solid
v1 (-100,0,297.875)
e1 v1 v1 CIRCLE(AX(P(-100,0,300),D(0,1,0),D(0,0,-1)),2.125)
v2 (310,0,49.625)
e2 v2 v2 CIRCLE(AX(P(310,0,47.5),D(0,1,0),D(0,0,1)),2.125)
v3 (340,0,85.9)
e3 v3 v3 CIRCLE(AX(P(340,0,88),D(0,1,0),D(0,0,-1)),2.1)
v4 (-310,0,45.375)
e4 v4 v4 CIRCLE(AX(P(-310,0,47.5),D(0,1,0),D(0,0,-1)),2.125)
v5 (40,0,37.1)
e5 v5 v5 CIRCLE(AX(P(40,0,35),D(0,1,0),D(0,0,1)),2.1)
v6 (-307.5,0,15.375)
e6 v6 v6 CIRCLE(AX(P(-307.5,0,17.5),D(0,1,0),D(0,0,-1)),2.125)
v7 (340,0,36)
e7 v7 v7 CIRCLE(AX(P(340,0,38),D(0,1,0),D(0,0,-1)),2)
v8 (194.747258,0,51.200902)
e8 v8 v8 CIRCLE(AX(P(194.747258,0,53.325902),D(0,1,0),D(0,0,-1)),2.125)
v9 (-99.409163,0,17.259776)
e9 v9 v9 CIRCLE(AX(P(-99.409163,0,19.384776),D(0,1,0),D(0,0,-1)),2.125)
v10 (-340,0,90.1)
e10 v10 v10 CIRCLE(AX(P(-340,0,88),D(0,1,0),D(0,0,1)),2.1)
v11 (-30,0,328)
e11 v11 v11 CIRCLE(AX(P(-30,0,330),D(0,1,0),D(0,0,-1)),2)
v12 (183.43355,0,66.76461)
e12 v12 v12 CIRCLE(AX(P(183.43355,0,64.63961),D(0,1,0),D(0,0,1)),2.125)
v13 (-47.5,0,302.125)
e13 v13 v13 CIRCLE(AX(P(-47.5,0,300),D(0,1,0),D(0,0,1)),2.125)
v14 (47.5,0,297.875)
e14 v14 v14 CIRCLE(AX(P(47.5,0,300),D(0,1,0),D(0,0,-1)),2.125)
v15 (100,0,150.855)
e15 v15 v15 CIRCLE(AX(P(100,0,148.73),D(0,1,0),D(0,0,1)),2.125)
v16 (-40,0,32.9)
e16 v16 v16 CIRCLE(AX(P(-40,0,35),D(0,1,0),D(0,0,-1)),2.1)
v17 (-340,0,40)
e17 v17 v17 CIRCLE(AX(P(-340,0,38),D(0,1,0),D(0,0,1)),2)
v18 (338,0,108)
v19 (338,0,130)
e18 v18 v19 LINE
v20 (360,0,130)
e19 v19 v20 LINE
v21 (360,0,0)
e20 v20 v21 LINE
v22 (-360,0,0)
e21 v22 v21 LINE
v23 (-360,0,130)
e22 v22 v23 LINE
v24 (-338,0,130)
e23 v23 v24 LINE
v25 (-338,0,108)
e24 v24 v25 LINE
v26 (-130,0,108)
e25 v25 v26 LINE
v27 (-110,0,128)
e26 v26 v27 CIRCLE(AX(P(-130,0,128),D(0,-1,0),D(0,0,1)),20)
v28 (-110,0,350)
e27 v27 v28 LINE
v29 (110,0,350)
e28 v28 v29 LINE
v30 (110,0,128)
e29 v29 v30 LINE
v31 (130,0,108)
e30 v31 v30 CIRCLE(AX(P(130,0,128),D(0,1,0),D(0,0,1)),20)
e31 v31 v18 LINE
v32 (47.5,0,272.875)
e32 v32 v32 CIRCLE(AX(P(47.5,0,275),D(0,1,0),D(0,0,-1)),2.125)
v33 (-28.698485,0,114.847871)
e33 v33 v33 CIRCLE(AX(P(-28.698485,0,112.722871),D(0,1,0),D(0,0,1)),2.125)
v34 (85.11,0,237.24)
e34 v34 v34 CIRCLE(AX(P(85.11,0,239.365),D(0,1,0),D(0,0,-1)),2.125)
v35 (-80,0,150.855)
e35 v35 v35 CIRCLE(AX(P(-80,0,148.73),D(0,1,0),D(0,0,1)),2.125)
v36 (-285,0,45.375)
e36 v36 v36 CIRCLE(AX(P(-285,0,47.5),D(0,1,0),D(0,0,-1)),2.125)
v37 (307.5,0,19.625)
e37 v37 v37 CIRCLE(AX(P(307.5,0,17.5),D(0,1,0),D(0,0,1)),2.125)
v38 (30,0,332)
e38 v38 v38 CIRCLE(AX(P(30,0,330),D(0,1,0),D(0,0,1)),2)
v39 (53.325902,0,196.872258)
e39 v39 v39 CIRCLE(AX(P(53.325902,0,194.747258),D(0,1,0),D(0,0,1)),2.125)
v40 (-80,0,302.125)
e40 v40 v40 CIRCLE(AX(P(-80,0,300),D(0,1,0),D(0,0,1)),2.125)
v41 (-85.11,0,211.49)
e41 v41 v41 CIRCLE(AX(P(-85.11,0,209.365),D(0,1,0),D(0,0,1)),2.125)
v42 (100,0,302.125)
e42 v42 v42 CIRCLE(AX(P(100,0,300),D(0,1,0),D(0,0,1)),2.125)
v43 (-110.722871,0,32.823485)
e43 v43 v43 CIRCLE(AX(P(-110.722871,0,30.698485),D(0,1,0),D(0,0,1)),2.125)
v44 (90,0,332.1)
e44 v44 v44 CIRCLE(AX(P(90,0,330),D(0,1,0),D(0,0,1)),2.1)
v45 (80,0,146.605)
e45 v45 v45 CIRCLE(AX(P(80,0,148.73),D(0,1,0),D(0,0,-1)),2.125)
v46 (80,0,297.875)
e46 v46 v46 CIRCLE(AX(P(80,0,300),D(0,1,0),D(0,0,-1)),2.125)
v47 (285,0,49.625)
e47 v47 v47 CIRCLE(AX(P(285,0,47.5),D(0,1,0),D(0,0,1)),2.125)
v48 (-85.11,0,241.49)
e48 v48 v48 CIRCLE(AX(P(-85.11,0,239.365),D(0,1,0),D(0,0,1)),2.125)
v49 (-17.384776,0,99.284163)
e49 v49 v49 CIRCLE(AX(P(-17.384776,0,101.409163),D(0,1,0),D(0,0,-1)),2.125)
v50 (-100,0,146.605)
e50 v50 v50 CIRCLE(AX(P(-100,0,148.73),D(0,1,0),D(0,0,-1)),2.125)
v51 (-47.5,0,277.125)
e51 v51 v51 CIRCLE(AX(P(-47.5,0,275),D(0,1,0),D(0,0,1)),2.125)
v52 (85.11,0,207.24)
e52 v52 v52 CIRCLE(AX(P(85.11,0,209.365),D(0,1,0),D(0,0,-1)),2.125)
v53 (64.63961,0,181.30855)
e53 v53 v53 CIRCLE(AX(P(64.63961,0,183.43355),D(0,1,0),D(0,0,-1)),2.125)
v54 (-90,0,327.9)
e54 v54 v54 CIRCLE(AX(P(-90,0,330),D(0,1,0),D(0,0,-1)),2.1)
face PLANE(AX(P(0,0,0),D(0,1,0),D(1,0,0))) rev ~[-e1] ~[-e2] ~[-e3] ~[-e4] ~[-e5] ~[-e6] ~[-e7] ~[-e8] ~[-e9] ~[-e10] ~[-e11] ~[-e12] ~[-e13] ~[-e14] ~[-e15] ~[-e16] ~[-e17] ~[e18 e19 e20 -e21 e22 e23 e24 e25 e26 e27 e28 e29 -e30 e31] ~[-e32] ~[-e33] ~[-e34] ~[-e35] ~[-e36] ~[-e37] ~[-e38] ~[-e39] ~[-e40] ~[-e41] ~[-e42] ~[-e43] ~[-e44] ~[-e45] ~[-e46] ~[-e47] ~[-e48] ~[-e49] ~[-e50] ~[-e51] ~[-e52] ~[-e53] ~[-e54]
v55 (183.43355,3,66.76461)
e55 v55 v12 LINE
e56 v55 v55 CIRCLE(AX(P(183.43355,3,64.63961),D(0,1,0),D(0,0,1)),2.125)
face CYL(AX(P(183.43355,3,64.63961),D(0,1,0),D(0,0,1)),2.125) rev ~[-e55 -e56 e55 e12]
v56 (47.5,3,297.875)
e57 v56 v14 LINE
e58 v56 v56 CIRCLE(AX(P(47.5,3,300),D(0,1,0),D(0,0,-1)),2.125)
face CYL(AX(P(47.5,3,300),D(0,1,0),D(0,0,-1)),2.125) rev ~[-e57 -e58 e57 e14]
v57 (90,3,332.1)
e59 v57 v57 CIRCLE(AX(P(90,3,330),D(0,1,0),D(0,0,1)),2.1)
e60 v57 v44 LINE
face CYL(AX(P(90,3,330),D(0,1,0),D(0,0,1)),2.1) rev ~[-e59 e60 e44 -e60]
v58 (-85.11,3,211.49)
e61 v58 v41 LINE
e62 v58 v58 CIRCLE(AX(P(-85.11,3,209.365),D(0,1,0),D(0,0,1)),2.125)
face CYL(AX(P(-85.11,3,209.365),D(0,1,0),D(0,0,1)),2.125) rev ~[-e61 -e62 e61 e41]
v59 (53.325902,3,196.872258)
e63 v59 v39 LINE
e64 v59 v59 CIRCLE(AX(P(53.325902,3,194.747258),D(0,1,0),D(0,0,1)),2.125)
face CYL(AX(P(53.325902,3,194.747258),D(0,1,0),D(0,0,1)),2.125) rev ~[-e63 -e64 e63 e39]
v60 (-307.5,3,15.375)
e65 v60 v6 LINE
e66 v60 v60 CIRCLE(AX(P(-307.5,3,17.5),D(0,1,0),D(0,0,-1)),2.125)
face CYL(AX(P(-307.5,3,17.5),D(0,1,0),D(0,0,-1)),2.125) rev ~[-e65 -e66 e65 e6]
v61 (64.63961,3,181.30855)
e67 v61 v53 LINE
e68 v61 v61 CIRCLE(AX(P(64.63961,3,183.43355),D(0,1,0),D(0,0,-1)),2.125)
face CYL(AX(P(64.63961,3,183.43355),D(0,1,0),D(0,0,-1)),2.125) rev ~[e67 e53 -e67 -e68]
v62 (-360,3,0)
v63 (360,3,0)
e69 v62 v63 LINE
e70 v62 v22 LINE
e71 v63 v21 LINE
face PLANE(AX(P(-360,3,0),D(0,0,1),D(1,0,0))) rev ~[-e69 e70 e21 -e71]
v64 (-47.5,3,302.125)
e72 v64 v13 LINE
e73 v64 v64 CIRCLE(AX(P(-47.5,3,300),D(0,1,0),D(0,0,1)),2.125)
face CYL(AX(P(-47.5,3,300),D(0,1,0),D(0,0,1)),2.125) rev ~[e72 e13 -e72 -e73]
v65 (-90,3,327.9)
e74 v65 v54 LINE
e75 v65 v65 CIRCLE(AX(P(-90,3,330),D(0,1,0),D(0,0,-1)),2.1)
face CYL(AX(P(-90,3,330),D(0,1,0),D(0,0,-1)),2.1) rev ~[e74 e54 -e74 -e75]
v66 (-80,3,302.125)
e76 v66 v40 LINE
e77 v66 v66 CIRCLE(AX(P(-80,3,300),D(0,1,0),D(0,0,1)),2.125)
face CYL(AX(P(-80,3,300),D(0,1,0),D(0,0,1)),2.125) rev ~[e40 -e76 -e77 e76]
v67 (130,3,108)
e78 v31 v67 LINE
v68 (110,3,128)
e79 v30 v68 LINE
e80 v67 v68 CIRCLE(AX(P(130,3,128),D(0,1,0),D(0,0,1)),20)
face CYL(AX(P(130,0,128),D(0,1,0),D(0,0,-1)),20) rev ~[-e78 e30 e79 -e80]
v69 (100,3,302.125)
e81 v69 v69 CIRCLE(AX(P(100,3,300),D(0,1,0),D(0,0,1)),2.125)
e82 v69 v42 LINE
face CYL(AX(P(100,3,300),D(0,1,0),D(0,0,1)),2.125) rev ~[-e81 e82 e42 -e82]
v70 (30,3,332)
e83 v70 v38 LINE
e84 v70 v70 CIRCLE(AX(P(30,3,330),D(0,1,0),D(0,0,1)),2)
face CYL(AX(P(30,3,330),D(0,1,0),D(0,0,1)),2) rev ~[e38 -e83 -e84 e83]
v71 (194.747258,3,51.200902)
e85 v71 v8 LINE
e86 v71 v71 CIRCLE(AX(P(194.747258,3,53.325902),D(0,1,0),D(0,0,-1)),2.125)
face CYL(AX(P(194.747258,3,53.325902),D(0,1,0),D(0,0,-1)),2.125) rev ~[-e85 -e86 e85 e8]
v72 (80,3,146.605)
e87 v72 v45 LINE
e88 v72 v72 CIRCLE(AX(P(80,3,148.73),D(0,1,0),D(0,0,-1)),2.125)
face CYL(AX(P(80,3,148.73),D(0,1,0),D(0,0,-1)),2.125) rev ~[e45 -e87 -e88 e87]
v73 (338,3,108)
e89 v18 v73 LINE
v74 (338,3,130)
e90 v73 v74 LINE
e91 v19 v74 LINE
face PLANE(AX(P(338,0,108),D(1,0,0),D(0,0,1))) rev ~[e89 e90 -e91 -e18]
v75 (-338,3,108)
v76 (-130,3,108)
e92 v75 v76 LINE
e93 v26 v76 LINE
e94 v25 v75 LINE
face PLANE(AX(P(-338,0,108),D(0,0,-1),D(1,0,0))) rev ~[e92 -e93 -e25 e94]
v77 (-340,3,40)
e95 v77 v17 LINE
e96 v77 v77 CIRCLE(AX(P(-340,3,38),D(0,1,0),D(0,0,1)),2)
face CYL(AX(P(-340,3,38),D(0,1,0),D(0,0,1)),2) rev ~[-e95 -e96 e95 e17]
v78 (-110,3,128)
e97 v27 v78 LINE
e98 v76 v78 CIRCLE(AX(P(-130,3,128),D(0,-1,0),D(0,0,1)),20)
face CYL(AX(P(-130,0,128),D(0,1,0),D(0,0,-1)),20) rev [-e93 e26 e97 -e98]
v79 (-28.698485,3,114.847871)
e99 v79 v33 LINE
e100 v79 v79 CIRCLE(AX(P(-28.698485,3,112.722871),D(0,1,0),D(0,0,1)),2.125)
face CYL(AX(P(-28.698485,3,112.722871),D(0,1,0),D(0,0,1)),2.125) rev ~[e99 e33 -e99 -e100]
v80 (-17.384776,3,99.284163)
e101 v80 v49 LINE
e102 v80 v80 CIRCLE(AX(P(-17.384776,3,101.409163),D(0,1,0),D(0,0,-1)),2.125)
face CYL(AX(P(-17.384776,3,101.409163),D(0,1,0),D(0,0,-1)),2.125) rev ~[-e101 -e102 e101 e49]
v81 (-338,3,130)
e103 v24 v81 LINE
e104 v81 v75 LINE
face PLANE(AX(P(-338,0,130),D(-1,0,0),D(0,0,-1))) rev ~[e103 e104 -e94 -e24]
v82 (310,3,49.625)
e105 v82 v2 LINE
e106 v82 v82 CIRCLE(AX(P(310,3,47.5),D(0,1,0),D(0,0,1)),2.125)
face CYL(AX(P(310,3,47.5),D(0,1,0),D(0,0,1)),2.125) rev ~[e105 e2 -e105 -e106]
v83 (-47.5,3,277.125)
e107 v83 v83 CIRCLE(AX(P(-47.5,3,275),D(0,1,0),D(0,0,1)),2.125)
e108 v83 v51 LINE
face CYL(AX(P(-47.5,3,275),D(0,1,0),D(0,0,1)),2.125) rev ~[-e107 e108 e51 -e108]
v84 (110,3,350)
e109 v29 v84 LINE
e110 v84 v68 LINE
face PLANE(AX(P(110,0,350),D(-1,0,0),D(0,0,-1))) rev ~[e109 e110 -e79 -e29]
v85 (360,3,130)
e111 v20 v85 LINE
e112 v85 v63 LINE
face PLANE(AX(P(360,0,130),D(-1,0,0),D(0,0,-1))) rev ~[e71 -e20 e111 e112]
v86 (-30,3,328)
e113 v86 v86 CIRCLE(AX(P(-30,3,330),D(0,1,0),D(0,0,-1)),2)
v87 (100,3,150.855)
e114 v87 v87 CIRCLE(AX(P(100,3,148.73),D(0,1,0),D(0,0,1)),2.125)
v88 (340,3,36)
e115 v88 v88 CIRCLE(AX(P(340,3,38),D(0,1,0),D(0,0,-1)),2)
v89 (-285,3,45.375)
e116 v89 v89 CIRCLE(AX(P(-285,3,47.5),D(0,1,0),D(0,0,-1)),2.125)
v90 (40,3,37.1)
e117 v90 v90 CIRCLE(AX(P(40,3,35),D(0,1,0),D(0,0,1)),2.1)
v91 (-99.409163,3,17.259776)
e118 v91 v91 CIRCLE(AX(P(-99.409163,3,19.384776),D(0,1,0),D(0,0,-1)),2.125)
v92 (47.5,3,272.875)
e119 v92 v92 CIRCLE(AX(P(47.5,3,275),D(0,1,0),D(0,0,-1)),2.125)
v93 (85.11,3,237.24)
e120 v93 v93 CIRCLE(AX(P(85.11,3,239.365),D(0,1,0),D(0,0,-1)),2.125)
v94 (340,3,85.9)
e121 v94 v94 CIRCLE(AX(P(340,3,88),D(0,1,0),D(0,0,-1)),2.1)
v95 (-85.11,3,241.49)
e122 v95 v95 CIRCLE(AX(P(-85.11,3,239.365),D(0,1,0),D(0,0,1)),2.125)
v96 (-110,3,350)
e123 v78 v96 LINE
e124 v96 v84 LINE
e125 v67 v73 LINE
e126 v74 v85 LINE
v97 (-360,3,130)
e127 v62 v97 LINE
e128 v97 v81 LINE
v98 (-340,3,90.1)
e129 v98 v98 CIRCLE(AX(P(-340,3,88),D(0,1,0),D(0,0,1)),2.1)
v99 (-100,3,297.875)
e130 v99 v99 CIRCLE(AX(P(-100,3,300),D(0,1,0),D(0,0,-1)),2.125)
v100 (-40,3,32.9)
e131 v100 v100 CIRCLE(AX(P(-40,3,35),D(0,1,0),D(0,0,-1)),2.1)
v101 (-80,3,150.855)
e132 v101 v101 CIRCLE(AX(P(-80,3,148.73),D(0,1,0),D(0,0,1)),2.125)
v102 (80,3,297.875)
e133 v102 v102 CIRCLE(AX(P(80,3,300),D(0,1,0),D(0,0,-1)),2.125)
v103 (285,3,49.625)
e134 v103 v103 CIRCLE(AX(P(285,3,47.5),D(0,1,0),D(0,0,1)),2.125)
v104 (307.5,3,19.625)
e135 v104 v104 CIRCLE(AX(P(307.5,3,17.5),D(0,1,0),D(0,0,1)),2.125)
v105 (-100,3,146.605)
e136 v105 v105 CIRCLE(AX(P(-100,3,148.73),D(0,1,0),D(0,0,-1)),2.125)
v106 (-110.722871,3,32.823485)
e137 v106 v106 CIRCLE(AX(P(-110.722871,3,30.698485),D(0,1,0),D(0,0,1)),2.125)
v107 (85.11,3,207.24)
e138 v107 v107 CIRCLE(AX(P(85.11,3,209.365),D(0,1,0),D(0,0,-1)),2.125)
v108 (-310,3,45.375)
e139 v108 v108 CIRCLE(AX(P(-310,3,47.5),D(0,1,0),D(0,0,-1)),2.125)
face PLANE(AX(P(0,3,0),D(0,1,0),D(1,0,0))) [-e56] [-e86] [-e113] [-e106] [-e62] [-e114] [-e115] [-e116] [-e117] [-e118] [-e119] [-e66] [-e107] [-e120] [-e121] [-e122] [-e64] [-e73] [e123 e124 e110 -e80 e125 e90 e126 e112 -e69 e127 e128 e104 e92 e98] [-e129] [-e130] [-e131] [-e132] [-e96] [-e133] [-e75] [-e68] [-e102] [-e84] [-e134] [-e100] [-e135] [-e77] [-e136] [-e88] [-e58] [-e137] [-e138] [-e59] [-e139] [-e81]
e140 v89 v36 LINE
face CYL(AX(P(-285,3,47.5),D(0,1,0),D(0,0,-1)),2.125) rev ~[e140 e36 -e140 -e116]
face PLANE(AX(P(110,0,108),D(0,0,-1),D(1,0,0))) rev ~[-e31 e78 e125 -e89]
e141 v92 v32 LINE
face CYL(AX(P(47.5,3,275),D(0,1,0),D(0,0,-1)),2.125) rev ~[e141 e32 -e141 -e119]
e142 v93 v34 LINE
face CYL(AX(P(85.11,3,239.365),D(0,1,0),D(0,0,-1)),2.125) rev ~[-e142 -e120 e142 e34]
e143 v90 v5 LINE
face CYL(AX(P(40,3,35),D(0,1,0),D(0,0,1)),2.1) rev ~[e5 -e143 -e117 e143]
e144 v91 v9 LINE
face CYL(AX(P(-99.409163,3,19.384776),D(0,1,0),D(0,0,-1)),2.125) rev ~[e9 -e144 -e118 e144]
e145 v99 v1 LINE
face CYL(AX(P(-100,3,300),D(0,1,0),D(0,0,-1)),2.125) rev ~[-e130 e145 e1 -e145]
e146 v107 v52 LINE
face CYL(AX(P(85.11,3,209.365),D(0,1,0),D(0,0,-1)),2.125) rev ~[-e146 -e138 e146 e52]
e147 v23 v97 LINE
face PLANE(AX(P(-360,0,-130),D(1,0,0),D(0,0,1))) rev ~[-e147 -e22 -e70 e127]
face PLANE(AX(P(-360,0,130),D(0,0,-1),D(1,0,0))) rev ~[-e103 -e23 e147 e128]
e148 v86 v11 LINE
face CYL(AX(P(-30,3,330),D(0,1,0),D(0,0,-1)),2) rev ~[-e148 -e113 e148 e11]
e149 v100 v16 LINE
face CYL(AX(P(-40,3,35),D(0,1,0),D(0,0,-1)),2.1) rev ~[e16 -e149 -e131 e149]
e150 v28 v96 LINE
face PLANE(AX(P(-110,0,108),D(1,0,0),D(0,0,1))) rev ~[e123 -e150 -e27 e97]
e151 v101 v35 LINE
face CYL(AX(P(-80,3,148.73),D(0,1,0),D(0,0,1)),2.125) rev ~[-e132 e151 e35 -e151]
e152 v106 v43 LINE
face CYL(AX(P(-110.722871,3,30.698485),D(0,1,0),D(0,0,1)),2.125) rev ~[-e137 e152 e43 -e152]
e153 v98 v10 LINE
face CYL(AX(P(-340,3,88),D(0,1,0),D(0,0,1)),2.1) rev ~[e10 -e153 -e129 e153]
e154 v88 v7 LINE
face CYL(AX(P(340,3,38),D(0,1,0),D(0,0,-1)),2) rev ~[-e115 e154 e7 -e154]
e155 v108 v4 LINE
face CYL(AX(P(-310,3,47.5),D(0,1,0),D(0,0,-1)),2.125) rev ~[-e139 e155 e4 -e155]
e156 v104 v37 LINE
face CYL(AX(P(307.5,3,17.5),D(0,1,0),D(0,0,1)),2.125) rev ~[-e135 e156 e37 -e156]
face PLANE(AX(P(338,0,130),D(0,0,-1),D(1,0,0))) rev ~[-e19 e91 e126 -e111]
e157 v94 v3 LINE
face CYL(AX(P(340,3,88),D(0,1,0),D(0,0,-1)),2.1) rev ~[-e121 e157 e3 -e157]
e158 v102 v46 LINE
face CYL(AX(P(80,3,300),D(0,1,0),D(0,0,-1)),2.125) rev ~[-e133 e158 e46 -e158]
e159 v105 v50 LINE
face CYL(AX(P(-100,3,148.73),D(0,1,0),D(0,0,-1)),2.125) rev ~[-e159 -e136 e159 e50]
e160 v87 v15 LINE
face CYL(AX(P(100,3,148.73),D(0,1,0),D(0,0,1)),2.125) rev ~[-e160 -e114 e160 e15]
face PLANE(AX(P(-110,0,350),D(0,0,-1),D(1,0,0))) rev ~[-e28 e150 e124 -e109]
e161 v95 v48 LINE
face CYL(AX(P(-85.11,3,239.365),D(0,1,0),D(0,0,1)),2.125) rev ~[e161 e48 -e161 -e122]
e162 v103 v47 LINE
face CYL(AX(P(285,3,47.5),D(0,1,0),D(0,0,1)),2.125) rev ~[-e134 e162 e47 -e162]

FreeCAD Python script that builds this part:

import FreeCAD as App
import Part
import Sketcher
from FreeCAD import Vector


def edges_at(feature, points):
    """Names of the edges that pass closest to the given points."""
    edges = feature.Shape.Edges
    near = lambda p: min(range(len(edges)), key=lambda i: edges[i].distToShape(Part.Vertex(*p))[0])
    return sorted({f"Edge{near(p) + 1}" for p in points})

doc = App.newDocument("Part")
body = doc.addObject("PartDesign::Body", "Body")

# Sketch on XZ plane
sketch1 = body.newObject("Sketcher::SketchObject", "Sketch")
sketch1.AttachmentSupport = (doc.getObject("XZ_Plane"), [""])
sketch1.MapMode = "FlatFace"
sketch1.addGeometry(Part.LineSegment(Vector(-110, -350, 0), Vector(-110, -108, 0)), False)
sketch1.addGeometry(Part.LineSegment(Vector(-110, -108, 0), Vector(-338, -108, 0)), False)
sketch1.addGeometry(Part.LineSegment(Vector(-338, -108, 0), Vector(-338, -130, 0)), False)
sketch1.addGeometry(Part.LineSegment(Vector(-338, -130, 0), Vector(-360, -130, 0)), False)
sketch1.addGeometry(Part.LineSegment(Vector(-360, -130, 0), Vector(-360, 130, 0)), False)
sketch1.addGeometry(Part.LineSegment(Vector(-360, 130, 0), Vector(-338, 130, 0)), False)
sketch1.addGeometry(Part.LineSegment(Vector(-338, 130, 0), Vector(-338, 108, 0)), False)
sketch1.addGeometry(Part.LineSegment(Vector(-338, 108, 0), Vector(-110, 108, 0)), False)
sketch1.addGeometry(Part.LineSegment(Vector(-110, 108, 0), Vector(-110, 350, 0)), False)
sketch1.addGeometry(Part.LineSegment(Vector(-110, 350, 0), Vector(110, 350, 0)), False)
sketch1.addGeometry(Part.LineSegment(Vector(110, 350, 0), Vector(110, 108, 0)), False)
sketch1.addGeometry(Part.LineSegment(Vector(110, 108, 0), Vector(338, 108, 0)), False)
sketch1.addGeometry(Part.LineSegment(Vector(338, 108, 0), Vector(338, 130, 0)), False)
sketch1.addGeometry(Part.LineSegment(Vector(338, 130, 0), Vector(360, 130, 0)), False)
sketch1.addGeometry(Part.LineSegment(Vector(360, 130, 0), Vector(360, -130, 0)), False)
sketch1.addGeometry(Part.LineSegment(Vector(360, -130, 0), Vector(338, -130, 0)), False)
sketch1.addGeometry(Part.LineSegment(Vector(338, -130, 0), Vector(338, -108, 0)), False)
sketch1.addGeometry(Part.LineSegment(Vector(338, -108, 0), Vector(110, -108, 0)), False)
sketch1.addGeometry(Part.LineSegment(Vector(110, -108, 0), Vector(110, -350, 0)), False)
sketch1.addGeometry(Part.LineSegment(Vector(110, -350, 0), Vector(-110, -350, 0)), False)
sketch1.addConstraint(Sketcher.Constraint("Coincident", 0, 2, 1, 1))
sketch1.addConstraint(Sketcher.Constraint("Coincident", 1, 2, 2, 1))
sketch1.addConstraint(Sketcher.Constraint("Coincident", 2, 2, 3, 1))
sketch1.addConstraint(Sketcher.Constraint("Coincident", 3, 2, 4, 1))
sketch1.addConstraint(Sketcher.Constraint("Coincident", 4, 2, 5, 1))
sketch1.addConstraint(Sketcher.Constraint("Coincident", 5, 2, 6, 1))
sketch1.addConstraint(Sketcher.Constraint("Coincident", 6, 2, 7, 1))
sketch1.addConstraint(Sketcher.Constraint("Coincident", 7, 2, 8, 1))
sketch1.addConstraint(Sketcher.Constraint("Coincident", 8, 2, 9, 1))
sketch1.addConstraint(Sketcher.Constraint("Coincident", 9, 2, 10, 1))
sketch1.addConstraint(Sketcher.Constraint("Coincident", 10, 2, 11, 1))
sketch1.addConstraint(Sketcher.Constraint("Coincident", 11, 2, 12, 1))
sketch1.addConstraint(Sketcher.Constraint("Coincident", 12, 2, 13, 1))
sketch1.addConstraint(Sketcher.Constraint("Coincident", 13, 2, 14, 1))
sketch1.addConstraint(Sketcher.Constraint("Coincident", 14, 2, 15, 1))
sketch1.addConstraint(Sketcher.Constraint("Coincident", 15, 2, 16, 1))
sketch1.addConstraint(Sketcher.Constraint("Coincident", 16, 2, 17, 1))
sketch1.addConstraint(Sketcher.Constraint("Coincident", 17, 2, 18, 1))
sketch1.addConstraint(Sketcher.Constraint("Coincident", 18, 2, 19, 1))
sketch1.addConstraint(Sketcher.Constraint("Coincident", 19, 2, 0, 1))
sketch1.addConstraint(Sketcher.Constraint("Vertical", 0))
sketch1.addConstraint(Sketcher.Constraint("Horizontal", 1))
sketch1.addConstraint(Sketcher.Constraint("Vertical", 2))
sketch1.addConstraint(Sketcher.Constraint("Horizontal", 3))
sketch1.addConstraint(Sketcher.Constraint("Vertical", 4))
sketch1.addConstraint(Sketcher.Constraint("Horizontal", 5))
sketch1.addConstraint(Sketcher.Constraint("Vertical", 6))
sketch1.addConstraint(Sketcher.Constraint("Horizontal", 7))
sketch1.addConstraint(Sketcher.Constraint("Vertical", 8))
sketch1.addConstraint(Sketcher.Constraint("Horizontal", 9))
sketch1.addConstraint(Sketcher.Constraint("Vertical", 10))
sketch1.addConstraint(Sketcher.Constraint("Horizontal", 11))
sketch1.addConstraint(Sketcher.Constraint("Vertical", 12))
sketch1.addConstraint(Sketcher.Constraint("Horizontal", 13))
sketch1.addConstraint(Sketcher.Constraint("Vertical", 14))
sketch1.addConstraint(Sketcher.Constraint("Horizontal", 15))
sketch1.addConstraint(Sketcher.Constraint("Vertical", 16))
sketch1.addConstraint(Sketcher.Constraint("Horizontal", 17))
sketch1.addConstraint(Sketcher.Constraint("Vertical", 18))
sketch1.addConstraint(Sketcher.Constraint("Horizontal", 19))
sketch1.addConstraint(Sketcher.Constraint("Symmetric", 0, 2, 10, 2, -1, 1))
sketch1.addConstraint(Sketcher.Constraint("Symmetric", 2, 2, 12, 2, -1, 1))
sketch1.addConstraint(Sketcher.Constraint("Symmetric", 4, 2, 14, 2, -1, 1))
sketch1.addConstraint(Sketcher.Constraint("Symmetric", 6, 2, 16, 2, -1, 1))
sketch1.addConstraint(Sketcher.Constraint("Symmetric", 8, 2, 18, 2, -1, 1))
sketch1.addConstraint(Sketcher.Constraint("Symmetric", 7, 2, 10, 2, -2))
sketch1.addConstraint(Sketcher.Constraint("Symmetric", 5, 2, 12, 2, -2))
sketch1.addConstraint(Sketcher.Constraint("Equal", 15, 2))
sketch1.addConstraint(Sketcher.Constraint("DistanceX", 1, 2, 1, 1, 228.0))
sketch1.addConstraint(Sketcher.Constraint("DistanceX", 3, 2, 3, 1, 22.0))
sketch1.addConstraint(Sketcher.Constraint("DistanceX", 9, 1, 9, 2, 220.0))
sketch1.addConstraint(Sketcher.Constraint("DistanceY", 0, 1, 0, 2, 242.0))
sketch1.addConstraint(Sketcher.Constraint("DistanceY", 4, 1, 4, 2, 260.0))
pad1 = body.newObject("PartDesign::Pad", "Pad")
pad1.Profile = sketch1
pad1.Length = 3
pad1.Reversed = True

# Sketch on XZ plane
sketch2 = body.newObject("Sketcher::SketchObject", "Sketch001")
sketch2.AttachmentSupport = (doc.getObject("XZ_Plane"), [""])
sketch2.MapMode = "FlatFace"
sketch2.AttachmentOffset = App.Placement(Vector(0, 0, -3), App.Rotation())
sketch2.addGeometry(Part.Circle(Vector(310, -47.5, 0), Vector(0, 0, 1), 2.125), False)
sketch2.addGeometry(Part.Circle(Vector(285, -47.5, 0), Vector(0, 0, 1), 2.125), False)
sketch2.addGeometry(Part.Circle(Vector(307.5, -17.5, 0), Vector(0, 0, 1), 2.125), False)
sketch2.addGeometry(Part.Circle(Vector(307.5, 17.5, 0), Vector(0, 0, 1), 2.125), False)
sketch2.addGeometry(Part.Circle(Vector(310, 47.5, 0), Vector(0, 0, 1), 2.125), False)
sketch2.addGeometry(Part.Circle(Vector(285, 47.5, 0), Vector(0, 0, 1), 2.125), False)
sketch2.addGeometry(Part.Circle(Vector(-285, 47.5, 0), Vector(0, 0, 1), 2.125), False)
sketch2.addGeometry(Part.Circle(Vector(-310, 47.5, 0), Vector(0, 0, 1), 2.125), False)
sketch2.addGeometry(Part.Circle(Vector(-307.5, 17.5, 0), Vector(0, 0, 1), 2.125), False)
sketch2.addGeometry(Part.Circle(Vector(-307.5, -17.5, 0), Vector(0, 0, 1), 2.125), False)
sketch2.addGeometry(Part.Circle(Vector(-285, -47.5, 0), Vector(0, 0, 1), 2.125), False)
sketch2.addGeometry(Part.Circle(Vector(-310, -47.5, 0), Vector(0, 0, 1), 2.125), False)
sketch2.addGeometry(Part.Circle(Vector(47.5, -300, 0), Vector(0, 0, 1), 2.125), False)
sketch2.addGeometry(Part.Circle(Vector(47.5, -275, 0), Vector(0, 0, 1), 2.125), False)
sketch2.addGeometry(Part.Circle(Vector(-47.5, -275, 0), Vector(0, 0, 1), 2.125), False)
sketch2.addGeometry(Part.Circle(Vector(-47.5, -300, 0), Vector(0, 0, 1), 2.125), False)
sketch2.addGeometry(Part.Circle(Vector(-47.5, 300, 0), Vector(0, 0, 1), 2.125), False)
sketch2.addGeometry(Part.Circle(Vector(-47.5, 275, 0), Vector(0, 0, 1), 2.125), False)
sketch2.addGeometry(Part.Circle(Vector(47.5, 275, 0), Vector(0, 0, 1), 2.125), False)
sketch2.addGeometry(Part.Circle(Vector(47.5, 300, 0), Vector(0, 0, 1), 2.125), False)
sketch2.addConstraint(Sketcher.Constraint("Equal", 0, 1))
sketch2.addConstraint(Sketcher.Constraint("Equal", 1, 2))
sketch2.addConstraint(Sketcher.Constraint("Equal", 2, 3))
sketch2.addConstraint(Sketcher.Constraint("Equal", 3, 4))
sketch2.addConstraint(Sketcher.Constraint("Equal", 4, 5))
sketch2.addConstraint(Sketcher.Constraint("Equal", 5, 6))
sketch2.addConstraint(Sketcher.Constraint("Equal", 6, 7))
sketch2.addConstraint(Sketcher.Constraint("Equal", 7, 8))
sketch2.addConstraint(Sketcher.Constraint("Equal", 8, 9))
sketch2.addConstraint(Sketcher.Constraint("Equal", 9, 10))
sketch2.addConstraint(Sketcher.Constraint("Equal", 10, 11))
sketch2.addConstraint(Sketcher.Constraint("Equal", 11, 12))
sketch2.addConstraint(Sketcher.Constraint("Equal", 12, 13))
sketch2.addConstraint(Sketcher.Constraint("Equal", 13, 14))
sketch2.addConstraint(Sketcher.Constraint("Equal", 14, 15))
sketch2.addConstraint(Sketcher.Constraint("Equal", 15, 16))
sketch2.addConstraint(Sketcher.Constraint("Equal", 16, 17))
sketch2.addConstraint(Sketcher.Constraint("Equal", 17, 18))
sketch2.addConstraint(Sketcher.Constraint("Equal", 18, 19))
sketch2.addConstraint(Sketcher.Constraint("Symmetric", 1, 3, 6, 3, -1, 1))
sketch2.addConstraint(Sketcher.Constraint("Symmetric", 0, 3, 7, 3, -1, 1))
sketch2.addConstraint(Sketcher.Constraint("Symmetric", 2, 3, 8, 3, -1, 1))
sketch2.addConstraint(Sketcher.Constraint("Symmetric", 3, 3, 9, 3, -1, 1))
sketch2.addConstraint(Sketcher.Constraint("Symmetric", 5, 3, 10, 3, -1, 1))
sketch2.addConstraint(Sketcher.Constraint("Symmetric", 4, 3, 11, 3, -1, 1))
sketch2.addConstraint(Sketcher.Constraint("Symmetric", 12, 3, 16, 3, -1, 1))
sketch2.addConstraint(Sketcher.Constraint("Symmetric", 13, 3, 17, 3, -1, 1))
sketch2.addConstraint(Sketcher.Constraint("Symmetric", 14, 3, 18, 3, -1, 1))
sketch2.addConstraint(Sketcher.Constraint("Symmetric", 15, 3, 19, 3, -1, 1))
sketch2.addConstraint(Sketcher.Constraint("Symmetric", 5, 3, 6, 3, -2))
sketch2.addConstraint(Sketcher.Constraint("Symmetric", 4, 3, 7, 3, -2))
sketch2.addConstraint(Sketcher.Constraint("Symmetric", 3, 3, 8, 3, -2))
sketch2.addConstraint(Sketcher.Constraint("Symmetric", 13, 3, 14, 3, -2))
sketch2.addConstraint(Sketcher.Constraint("Symmetric", 12, 3, 15, 3, -2))
sketch2.addConstraint(Sketcher.Constraint("Horizontal", 0, 3, 1, 3))
sketch2.addConstraint(Sketcher.Constraint("Vertical", 12, 3, 13, 3))
sketch2.addConstraint(Sketcher.Constraint("Diameter", 0, 4.25))
sketch2.addConstraint(Sketcher.Constraint("DistanceX", -1, 1, 0, 3, 310.0))
sketch2.addConstraint(Sketcher.Constraint("DistanceX", -1, 1, 1, 3, 285.0))
sketch2.addConstraint(Sketcher.Constraint("DistanceY", 12, 3, -1, 1, 300.0))
sketch2.addConstraint(Sketcher.Constraint("DistanceY", 13, 3, -1, 1, 275.0))
sketch2.addConstraint(Sketcher.Constraint("DistanceY", 0, 3, 2, 3, 30.0))
sketch2.addConstraint(Sketcher.Constraint("DistanceY", 2, 3, 3, 3, 35.0))
sketch2.addConstraint(Sketcher.Constraint("DistanceX", 8, 3, 3, 3, 615.0))
sketch2.addConstraint(Sketcher.Constraint("DistanceX", 12, 3, 2, 3, 260.0))
pocket1 = body.newObject("PartDesign::Pocket", "Pocket")
pocket1.Profile = sketch2
pocket1.Type = "ThroughAll"
pocket1.Reversed = True

# Sketch on XZ plane
sketch3 = body.newObject("Sketcher::SketchObject", "Sketch002")
sketch3.AttachmentSupport = (doc.getObject("XZ_Plane"), [""])
sketch3.MapMode = "FlatFace"
sketch3.AttachmentOffset = App.Placement(Vector(0, 0, -3), App.Rotation())
sketch3.addGeometry(Part.Circle(Vector(340, -38, 0), Vector(0, 0, 1), 2), False)
sketch3.addGeometry(Part.Circle(Vector(340, 38, 0), Vector(0, 0, 1), 2), False)
sketch3.addGeometry(Part.Circle(Vector(-340, 38, 0), Vector(0, 0, 1), 2), False)
sketch3.addGeometry(Part.Circle(Vector(-340, -38, 0), Vector(0, 0, 1), 2), False)
sketch3.addGeometry(Part.Circle(Vector(-30, -330, 0), Vector(0, 0, 1), 2), False)
sketch3.addGeometry(Part.Circle(Vector(30, -330, 0), Vector(0, 0, 1), 2), False)
sketch3.addGeometry(Part.Circle(Vector(30, 330, 0), Vector(0, 0, 1), 2), False)
sketch3.addGeometry(Part.Circle(Vector(-30, 330, 0), Vector(0, 0, 1), 2), False)
sketch3.addConstraint(Sketcher.Constraint("Equal", 0, 1))
sketch3.addConstraint(Sketcher.Constraint("Equal", 1, 2))
sketch3.addConstraint(Sketcher.Constraint("Equal", 2, 3))
sketch3.addConstraint(Sketcher.Constraint("Equal", 3, 4))
sketch3.addConstraint(Sketcher.Constraint("Equal", 4, 5))
sketch3.addConstraint(Sketcher.Constraint("Equal", 5, 6))
sketch3.addConstraint(Sketcher.Constraint("Equal", 6, 7))
sketch3.addConstraint(Sketcher.Constraint("Symmetric", 0, 3, 2, 3, -1, 1))
sketch3.addConstraint(Sketcher.Constraint("Symmetric", 1, 3, 3, 3, -1, 1))
sketch3.addConstraint(Sketcher.Constraint("Symmetric", 4, 3, 6, 3, -1, 1))
sketch3.addConstraint(Sketcher.Constraint("Symmetric", 5, 3, 7, 3, -1, 1))
sketch3.addConstraint(Sketcher.Constraint("Symmetric", 1, 3, 2, 3, -2))
sketch3.addConstraint(Sketcher.Constraint("Symmetric", 4, 3, 5, 3, -2))
sketch3.addConstraint(Sketcher.Constraint("Diameter", 0, 4.0))
sketch3.addConstraint(Sketcher.Constraint("DistanceX", -1, 1, 0, 3, 340.0))
sketch3.addConstraint(Sketcher.Constraint("DistanceY", 0, 3, -1, 1, 38.0))
sketch3.addConstraint(Sketcher.Constraint("DistanceX", 4, 3, -1, 1, 30.0))
sketch3.addConstraint(Sketcher.Constraint("DistanceY", 4, 3, -1, 1, 330.0))
pocket2 = body.newObject("PartDesign::Pocket", "Pocket001")
pocket2.Profile = sketch3
pocket2.Type = "ThroughAll"
pocket2.Reversed = True

# Sketch on XZ plane
sketch4 = body.newObject("Sketcher::SketchObject", "Sketch003")
sketch4.AttachmentSupport = (doc.getObject("XZ_Plane"), [""])
sketch4.MapMode = "FlatFace"
sketch4.AttachmentOffset = App.Placement(Vector(0, 0, -3), App.Rotation())
sketch4.addGeometry(Part.Circle(Vector(80, -300, 0), Vector(0, 0, 1), 2.125), False)
sketch4.addGeometry(Part.Circle(Vector(80, -148.73, 0), Vector(0, 0, 1), 2.125), False)
sketch4.addGeometry(Part.Circle(Vector(85.11, -239.365, 0), Vector(0, 0, 1), 2.125), False)
sketch4.addGeometry(Part.Circle(Vector(85.11, -209.365, 0), Vector(0, 0, 1), 2.125), False)
sketch4.addGeometry(Part.Circle(Vector(100, -148.73, 0), Vector(0, 0, 1), 2.125), False)
sketch4.addGeometry(Part.Circle(Vector(100, -300, 0), Vector(0, 0, 1), 2.125), False)
sketch4.addGeometry(Part.Circle(Vector(-100, -300, 0), Vector(0, 0, 1), 2.125), False)
sketch4.addGeometry(Part.Circle(Vector(-100, -148.73, 0), Vector(0, 0, 1), 2.125), False)
sketch4.addGeometry(Part.Circle(Vector(-85.11, -209.365, 0), Vector(0, 0, 1), 2.125), False)
sketch4.addGeometry(Part.Circle(Vector(-85.11, -239.365, 0), Vector(0, 0, 1), 2.125), False)
sketch4.addGeometry(Part.Circle(Vector(-80, -148.73, 0), Vector(0, 0, 1), 2.125), False)
sketch4.addGeometry(Part.Circle(Vector(-80, -300, 0), Vector(0, 0, 1), 2.125), False)
sketch4.addGeometry(Part.Circle(Vector(-80, 300, 0), Vector(0, 0, 1), 2.125), False)
sketch4.addGeometry(Part.Circle(Vector(-80, 148.73, 0), Vector(0, 0, 1), 2.125), False)
sketch4.addGeometry(Part.Circle(Vector(-85.11, 239.365, 0), Vector(0, 0, 1), 2.125), False)
sketch4.addGeometry(Part.Circle(Vector(-85.11, 209.365, 0), Vector(0, 0, 1), 2.125), False)
sketch4.addGeometry(Part.Circle(Vector(-100, 148.73, 0), Vector(0, 0, 1), 2.125), False)
sketch4.addGeometry(Part.Circle(Vector(-100, 300, 0), Vector(0, 0, 1), 2.125), False)
sketch4.addGeometry(Part.Circle(Vector(100, 300, 0), Vector(0, 0, 1), 2.125), False)
sketch4.addGeometry(Part.Circle(Vector(100, 148.73, 0), Vector(0, 0, 1), 2.125), False)
sketch4.addGeometry(Part.Circle(Vector(85.11, 209.365, 0), Vector(0, 0, 1), 2.125), False)
sketch4.addGeometry(Part.Circle(Vector(85.11, 239.365, 0), Vector(0, 0, 1), 2.125), False)
sketch4.addGeometry(Part.Circle(Vector(80, 148.73, 0), Vector(0, 0, 1), 2.125), False)
sketch4.addGeometry(Part.Circle(Vector(80, 300, 0), Vector(0, 0, 1), 2.125), False)
sketch4.addConstraint(Sketcher.Constraint("Equal", 0, 1))
sketch4.addConstraint(Sketcher.Constraint("Equal", 1, 2))
sketch4.addConstraint(Sketcher.Constraint("Equal", 2, 3))
sketch4.addConstraint(Sketcher.Constraint("Equal", 3, 4))
sketch4.addConstraint(Sketcher.Constraint("Equal", 4, 5))
sketch4.addConstraint(Sketcher.Constraint("Equal", 5, 6))
sketch4.addConstraint(Sketcher.Constraint("Equal", 6, 7))
sketch4.addConstraint(Sketcher.Constraint("Equal", 7, 8))
sketch4.addConstraint(Sketcher.Constraint("Equal", 8, 9))
sketch4.addConstraint(Sketcher.Constraint("Equal", 9, 10))
sketch4.addConstraint(Sketcher.Constraint("Equal", 10, 11))
sketch4.addConstraint(Sketcher.Constraint("Equal", 11, 12))
sketch4.addConstraint(Sketcher.Constraint("Equal", 12, 13))
sketch4.addConstraint(Sketcher.Constraint("Equal", 13, 14))
sketch4.addConstraint(Sketcher.Constraint("Equal", 14, 15))
sketch4.addConstraint(Sketcher.Constraint("Equal", 15, 16))
sketch4.addConstraint(Sketcher.Constraint("Equal", 16, 17))
sketch4.addConstraint(Sketcher.Constraint("Equal", 17, 18))
sketch4.addConstraint(Sketcher.Constraint("Equal", 18, 19))
sketch4.addConstraint(Sketcher.Constraint("Equal", 19, 20))
sketch4.addConstraint(Sketcher.Constraint("Equal", 20, 21))
sketch4.addConstraint(Sketcher.Constraint("Equal", 21, 22))
sketch4.addConstraint(Sketcher.Constraint("Equal", 22, 23))
sketch4.addConstraint(Sketcher.Constraint("Symmetric", 0, 3, 12, 3, -1, 1))
sketch4.addConstraint(Sketcher.Constraint("Symmetric", 1, 3, 13, 3, -1, 1))
sketch4.addConstraint(Sketcher.Constraint("Symmetric", 2, 3, 14, 3, -1, 1))
sketch4.addConstraint(Sketcher.Constraint("Symmetric", 3, 3, 15, 3, -1, 1))
sketch4.addConstraint(Sketcher.Constraint("Symmetric", 4, 3, 16, 3, -1, 1))
sketch4.addConstraint(Sketcher.Constraint("Symmetric", 5, 3, 17, 3, -1, 1))
sketch4.addConstraint(Sketcher.Constraint("Symmetric", 6, 3, 18, 3, -1, 1))
sketch4.addConstraint(Sketcher.Constraint("Symmetric", 7, 3, 19, 3, -1, 1))
sketch4.addConstraint(Sketcher.Constraint("Symmetric", 8, 3, 20, 3, -1, 1))
sketch4.addConstraint(Sketcher.Constraint("Symmetric", 9, 3, 21, 3, -1, 1))
sketch4.addConstraint(Sketcher.Constraint("Symmetric", 10, 3, 22, 3, -1, 1))
sketch4.addConstraint(Sketcher.Constraint("Symmetric", 11, 3, 23, 3, -1, 1))
sketch4.addConstraint(Sketcher.Constraint("Symmetric", 5, 3, 6, 3, -2))
sketch4.addConstraint(Sketcher.Constraint("Symmetric", 4, 3, 7, 3, -2))
sketch4.addConstraint(Sketcher.Constraint("Symmetric", 3, 3, 8, 3, -2))
sketch4.addConstraint(Sketcher.Constraint("Symmetric", 2, 3, 9, 3, -2))
sketch4.addConstraint(Sketcher.Constraint("Symmetric", 1, 3, 10, 3, -2))
sketch4.addConstraint(Sketcher.Constraint("Symmetric", 0, 3, 11, 3, -2))
sketch4.addConstraint(Sketcher.Constraint("Horizontal", 1, 3, 4, 3))
sketch4.addConstraint(Sketcher.Constraint("Horizontal", 0, 3, 5, 3))
sketch4.addConstraint(Sketcher.Constraint("Vertical", 0, 3, 1, 3))
sketch4.addConstraint(Sketcher.Constraint("Vertical", 2, 3, 3, 3))
sketch4.addConstraint(Sketcher.Constraint("Vertical", 4, 3, 5, 3))
sketch4.addConstraint(Sketcher.Constraint("Diameter", 0, 4.25))
sketch4.addConstraint(Sketcher.Constraint("DistanceX", -1, 1, 0, 3, 80.0))
sketch4.addConstraint(Sketcher.Constraint("DistanceY", 0, 3, -1, 1, 300.0))
sketch4.addConstraint(Sketcher.Constraint("DistanceX", -1, 1, 4, 3, 100.0))
sketch4.addConstraint(Sketcher.Constraint("DistanceY", 2, 3, 3, 3, 30.0))
sketch4.addConstraint(Sketcher.Constraint("DistanceY", 1, 3, -1, 1, 148.73))
sketch4.addConstraint(Sketcher.Constraint("DistanceX", -1, 1, 2, 3, 85.11))
sketch4.addConstraint(Sketcher.Constraint("DistanceY", 2, 3, -1, 1, 239.365))
pocket3 = body.newObject("PartDesign::Pocket", "Pocket002")
pocket3.Profile = sketch4
pocket3.Length = 10
pocket3.Reversed = True
doc.recompute()

fillet = body.newObject("PartDesign::Fillet", "Fillet")
fillet.Base = (pocket3, edges_at(pocket3, [
    (110, 1.5, -108),
    (110, 1.5, 108),
    (-110, 1.5, 108),
    (-110, 1.5, -108),
]))
fillet.Radius = 20

# Sketch on XZ plane
sketch5 = body.newObject("Sketcher::SketchObject", "Sketch004")
sketch5.AttachmentSupport = (doc.getObject("XZ_Plane"), [""])
sketch5.MapMode = "FlatFace"
sketch5.AttachmentOffset = App.Placement(Vector(0, 0, -3), App.Rotation())
sketch5.addGeometry(Part.Circle(Vector(53.325902, 194.747258, 0), Vector(0, 0, 1), 2.125), False)
sketch5.addGeometry(Part.Circle(Vector(-192.747258, -51.325902, 0), Vector(0, 0, 1), 2.125), False)
sketch5.addGeometry(Part.Circle(Vector(-28.698485, 112.722871, 0), Vector(0, 0, 1), 2.125), False)
sketch5.addGeometry(Part.Circle(Vector(-110.722871, 30.698485, 0), Vector(0, 0, 1), 2.125), False)
sketch5.addGeometry(Part.Circle(Vector(64.63961, 183.43355, 0), Vector(0, 0, 1), 2.125), False)
sketch5.addGeometry(Part.Circle(Vector(-17.384776, 101.409163, 0), Vector(0, 0, 1), 2.125), False)
sketch5.addGeometry(Part.Circle(Vector(-99.409163, 19.384776, 0), Vector(0, 0, 1), 2.125), False)
sketch5.addGeometry(Part.Circle(Vector(-181.43355, -62.63961, 0), Vector(0, 0, 1), 2.125), False)
sketch5.addGeometry(Part.Circle(Vector(-62.63961, -181.43355, 0), Vector(0, 0, 1), 2.125), False)
sketch5.addGeometry(Part.Circle(Vector(19.384776, -99.409163, 0), Vector(0, 0, 1), 2.125), False)
sketch5.addGeometry(Part.Circle(Vector(101.409163, -17.384776, 0), Vector(0, 0, 1), 2.125), False)
sketch5.addGeometry(Part.Circle(Vector(183.43355, 64.63961, 0), Vector(0, 0, 1), 2.125), False)
sketch5.addGeometry(Part.Circle(Vector(30.698485, -110.722871, 0), Vector(0, 0, 1), 2.125), False)
sketch5.addGeometry(Part.Circle(Vector(112.722871, -28.698485, 0), Vector(0, 0, 1), 2.125), False)
sketch5.addGeometry(Part.Circle(Vector(-51.325902, -192.747258, 0), Vector(0, 0, 1), 2.125), False)
sketch5.addGeometry(Part.Circle(Vector(194.747258, 53.325902, 0), Vector(0, 0, 1), 2.125), False)
sketch5.addConstraint(Sketcher.Constraint("Equal", 0, 1))
sketch5.addConstraint(Sketcher.Constraint("Equal", 1, 2))
sketch5.addConstraint(Sketcher.Constraint("Equal", 2, 3))
sketch5.addConstraint(Sketcher.Constraint("Equal", 3, 4))
sketch5.addConstraint(Sketcher.Constraint("Equal", 4, 5))
sketch5.addConstraint(Sketcher.Constraint("Equal", 5, 6))
sketch5.addConstraint(Sketcher.Constraint("Equal", 6, 7))
sketch5.addConstraint(Sketcher.Constraint("Equal", 7, 8))
sketch5.addConstraint(Sketcher.Constraint("Equal", 8, 9))
sketch5.addConstraint(Sketcher.Constraint("Equal", 9, 10))
sketch5.addConstraint(Sketcher.Constraint("Equal", 10, 11))
sketch5.addConstraint(Sketcher.Constraint("Equal", 11, 12))
sketch5.addConstraint(Sketcher.Constraint("Equal", 12, 13))
sketch5.addConstraint(Sketcher.Constraint("Equal", 13, 14))
sketch5.addConstraint(Sketcher.Constraint("Equal", 14, 15))
sketch5.addConstraint(Sketcher.Constraint("Diameter", 0, 4.25))
sketch5.addConstraint(Sketcher.Constraint("DistanceX", -1, 1, 0, 3, 53.325902))
sketch5.addConstraint(Sketcher.Constraint("DistanceY", 1, 3, -1, 1, 51.325902))
sketch5.addConstraint(Sketcher.Constraint("DistanceX", 14, 3, -1, 1, 51.325902))
sketch5.addConstraint(Sketcher.Constraint("DistanceY", -1, 1, 15, 3, 53.325902))
sketch5.addConstraint(Sketcher.Constraint("DistanceY", -1, 1, 0, 3, 194.747258))
sketch5.addConstraint(Sketcher.Constraint("DistanceX", 1, 3, -1, 1, 192.747258))
sketch5.addConstraint(Sketcher.Constraint("DistanceY", -1, 1, 2, 3, 112.722871))
sketch5.addConstraint(Sketcher.Constraint("DistanceX", 3, 3, -1, 1, 110.722871))
sketch5.addConstraint(Sketcher.Constraint("DistanceX", -1, 1, 4, 3, 64.63961))
sketch5.addConstraint(Sketcher.Constraint("DistanceY", -1, 1, 4, 3, 183.43355))
sketch5.addConstraint(Sketcher.Constraint("DistanceX", 7, 3, -1, 1, 181.43355))
sketch5.addConstraint(Sketcher.Constraint("DistanceY", 7, 3, -1, 1, 62.63961))
sketch5.addConstraint(Sketcher.Constraint("DistanceX", 8, 3, -1, 1, 62.63961))
sketch5.addConstraint(Sketcher.Constraint("DistanceY", 8, 3, -1, 1, 181.43355))
sketch5.addConstraint(Sketcher.Constraint("DistanceX", -1, 1, 11, 3, 183.43355))
sketch5.addConstraint(Sketcher.Constraint("DistanceY", -1, 1, 11, 3, 64.63961))
sketch5.addConstraint(Sketcher.Constraint("DistanceY", 12, 3, -1, 1, 110.722871))
sketch5.addConstraint(Sketcher.Constraint("DistanceX", -1, 1, 13, 3, 112.722871))
sketch5.addConstraint(Sketcher.Constraint("DistanceY", 14, 3, -1, 1, 192.747258))
sketch5.addConstraint(Sketcher.Constraint("DistanceX", -1, 1, 15, 3, 194.747258))
sketch5.addConstraint(Sketcher.Constraint("DistanceX", 2, 3, 5, 3, 11.313708))
sketch5.addConstraint(Sketcher.Constraint("DistanceY", 5, 3, 2, 3, 11.313708))
sketch5.addConstraint(Sketcher.Constraint("DistanceY", 3, 3, 5, 3, 70.710678))
sketch5.addConstraint(Sketcher.Constraint("DistanceX", 5, 3, 0, 3, 70.710678))
sketch5.addConstraint(Sketcher.Constraint("DistanceX", 3, 3, 6, 3, 11.313708))
sketch5.addConstraint(Sketcher.Constraint("DistanceY", 6, 3, 3, 3, 11.313708))
sketch5.addConstraint(Sketcher.Constraint("DistanceX", 6, 3, 9, 3, 118.793939))
sketch5.addConstraint(Sketcher.Constraint("DistanceY", 9, 3, 6, 3, 118.793939))
sketch5.addConstraint(Sketcher.Constraint("DistanceX", 5, 3, 10, 3, 118.793939))
sketch5.addConstraint(Sketcher.Constraint("DistanceY", 10, 3, 5, 3, 118.793939))
sketch5.addConstraint(Sketcher.Constraint("DistanceX", 9, 3, 12, 3, 11.313708))
sketch5.addConstraint(Sketcher.Constraint("DistanceY", 13, 3, 10, 3, 11.313708))
pocket4 = body.newObject("PartDesign::Pocket", "Pocket003")
pocket4.Profile = sketch5
pocket4.Type = "ThroughAll"
pocket4.Reversed = True

# Sketch on XZ plane
sketch6 = body.newObject("Sketcher::SketchObject", "Sketch005")
sketch6.AttachmentSupport = (doc.getObject("XZ_Plane"), [""])
sketch6.MapMode = "FlatFace"
sketch6.AttachmentOffset = App.Placement(Vector(0, 0, -3), App.Rotation())
sketch6.addGeometry(Part.Circle(Vector(-40, -35, 0), Vector(0, 0, 1), 2.1), False)
sketch6.addGeometry(Part.Circle(Vector(40, -35, 0), Vector(0, 0, 1), 2.1), False)
sketch6.addGeometry(Part.Circle(Vector(40, 35, 0), Vector(0, 0, 1), 2.1), False)
sketch6.addGeometry(Part.Circle(Vector(-40, 35, 0), Vector(0, 0, 1), 2.1), False)
sketch6.addConstraint(Sketcher.Constraint("Equal", 0, 1))
sketch6.addConstraint(Sketcher.Constraint("Equal", 1, 2))
sketch6.addConstraint(Sketcher.Constraint("Equal", 2, 3))
sketch6.addConstraint(Sketcher.Constraint("Symmetric", 0, 3, 2, 3, -1, 1))
sketch6.addConstraint(Sketcher.Constraint("Symmetric", 1, 3, 3, 3, -1, 1))
sketch6.addConstraint(Sketcher.Constraint("Symmetric", 0, 3, 1, 3, -2))
sketch6.addConstraint(Sketcher.Constraint("Diameter", 0, 4.2))
sketch6.addConstraint(Sketcher.Constraint("DistanceX", 0, 3, -1, 1, 40.0))
sketch6.addConstraint(Sketcher.Constraint("DistanceY", 0, 3, -1, 1, 35.0))
pocket5 = body.newObject("PartDesign::Pocket", "Pocket004")
pocket5.Profile = sketch6
pocket5.Length = 10
pocket5.Reversed = True

# Sketch on XZ plane
sketch7 = body.newObject("Sketcher::SketchObject", "Sketch006")
sketch7.AttachmentSupport = (doc.getObject("XZ_Plane"), [""])
sketch7.MapMode = "FlatFace"
sketch7.AttachmentOffset = App.Placement(Vector(0, 0, -3), App.Rotation())
sketch7.addGeometry(Part.Circle(Vector(340, -88, 0), Vector(0, 0, 1), 2.1), False)
sketch7.addGeometry(Part.Circle(Vector(340, 88, 0), Vector(0, 0, 1), 2.1), False)
sketch7.addGeometry(Part.Circle(Vector(-340, 88, 0), Vector(0, 0, 1), 2.1), False)
sketch7.addGeometry(Part.Circle(Vector(-340, -88, 0), Vector(0, 0, 1), 2.1), False)
sketch7.addGeometry(Part.Circle(Vector(-90, -330, 0), Vector(0, 0, 1), 2.1), False)
sketch7.addGeometry(Part.Circle(Vector(90, -330, 0), Vector(0, 0, 1), 2.1), False)
sketch7.addGeometry(Part.Circle(Vector(90, 330, 0), Vector(0, 0, 1), 2.1), False)
sketch7.addGeometry(Part.Circle(Vector(-90, 330, 0), Vector(0, 0, 1), 2.1), False)
sketch7.addConstraint(Sketcher.Constraint("Equal", 0, 1))
sketch7.addConstraint(Sketcher.Constraint("Equal", 1, 2))
sketch7.addConstraint(Sketcher.Constraint("Equal", 2, 3))
sketch7.addConstraint(Sketcher.Constraint("Equal", 3, 4))
sketch7.addConstraint(Sketcher.Constraint("Equal", 4, 5))
sketch7.addConstraint(Sketcher.Constraint("Equal", 5, 6))
sketch7.addConstraint(Sketcher.Constraint("Equal", 6, 7))
sketch7.addConstraint(Sketcher.Constraint("Symmetric", 0, 3, 2, 3, -1, 1))
sketch7.addConstraint(Sketcher.Constraint("Symmetric", 1, 3, 3, 3, -1, 1))
sketch7.addConstraint(Sketcher.Constraint("Symmetric", 4, 3, 6, 3, -1, 1))
sketch7.addConstraint(Sketcher.Constraint("Symmetric", 5, 3, 7, 3, -1, 1))
sketch7.addConstraint(Sketcher.Constraint("Symmetric", 1, 3, 2, 3, -2))
sketch7.addConstraint(Sketcher.Constraint("Symmetric", 4, 3, 5, 3, -2))
sketch7.addConstraint(Sketcher.Constraint("Diameter", 0, 4.2))
sketch7.addConstraint(Sketcher.Constraint("DistanceX", -1, 1, 0, 3, 340.0))
sketch7.addConstraint(Sketcher.Constraint("DistanceY", 0, 3, -1, 1, 88.0))
sketch7.addConstraint(Sketcher.Constraint("DistanceX", 4, 3, -1, 1, 90.0))
sketch7.addConstraint(Sketcher.Constraint("DistanceY", 4, 3, -1, 1, 330.0))
pocket6 = body.newObject("PartDesign::Pocket", "Pocket005")
pocket6.Profile = sketch7
pocket6.Length = 10
pocket6.Reversed = True

# Sketch on XZ plane
sketch8 = body.newObject("Sketcher::SketchObject", "Sketch007")
sketch8.AttachmentSupport = (doc.getObject("XZ_Plane"), [""])
sketch8.MapMode = "FlatFace"
sketch8.AttachmentOffset = App.Placement(Vector(0, 0, -3), App.Rotation())
sketch8.addGeometry(Part.LineSegment(Vector(-360, -350, 0), Vector(-360, 0, 0)), False)
sketch8.addGeometry(Part.LineSegment(Vector(-360, 0, 0), Vector(360, 0, 0)), False)
sketch8.addGeometry(Part.LineSegment(Vector(360, 0, 0), Vector(360, -350, 0)), False)
sketch8.addGeometry(Part.LineSegment(Vector(360, -350, 0), Vector(-360, -350, 0)), False)
sketch8.addConstraint(Sketcher.Constraint("Coincident", 0, 2, 1, 1))
sketch8.addConstraint(Sketcher.Constraint("Coincident", 1, 2, 2, 1))
sketch8.addConstraint(Sketcher.Constraint("Coincident", 2, 2, 3, 1))
sketch8.addConstraint(Sketcher.Constraint("Coincident", 3, 2, 0, 1))
sketch8.addConstraint(Sketcher.Constraint("Vertical", 0))
sketch8.addConstraint(Sketcher.Constraint("Horizontal", 1))
sketch8.addConstraint(Sketcher.Constraint("Vertical", 2))
sketch8.addConstraint(Sketcher.Constraint("Horizontal", 3))
sketch8.addConstraint(Sketcher.Constraint("Symmetric", 0, 2, 1, 2, -1, 1))
sketch8.addConstraint(Sketcher.Constraint("DistanceX", 1, 1, 1, 2, 720.0))
sketch8.addConstraint(Sketcher.Constraint("DistanceY", 0, 1, 0, 2, 350.0))
pocket7 = body.newObject("PartDesign::Pocket", "Pocket006")
pocket7.Profile = sketch8
pocket7.Length = 10
pocket7.Reversed = True

doc.recompute()
